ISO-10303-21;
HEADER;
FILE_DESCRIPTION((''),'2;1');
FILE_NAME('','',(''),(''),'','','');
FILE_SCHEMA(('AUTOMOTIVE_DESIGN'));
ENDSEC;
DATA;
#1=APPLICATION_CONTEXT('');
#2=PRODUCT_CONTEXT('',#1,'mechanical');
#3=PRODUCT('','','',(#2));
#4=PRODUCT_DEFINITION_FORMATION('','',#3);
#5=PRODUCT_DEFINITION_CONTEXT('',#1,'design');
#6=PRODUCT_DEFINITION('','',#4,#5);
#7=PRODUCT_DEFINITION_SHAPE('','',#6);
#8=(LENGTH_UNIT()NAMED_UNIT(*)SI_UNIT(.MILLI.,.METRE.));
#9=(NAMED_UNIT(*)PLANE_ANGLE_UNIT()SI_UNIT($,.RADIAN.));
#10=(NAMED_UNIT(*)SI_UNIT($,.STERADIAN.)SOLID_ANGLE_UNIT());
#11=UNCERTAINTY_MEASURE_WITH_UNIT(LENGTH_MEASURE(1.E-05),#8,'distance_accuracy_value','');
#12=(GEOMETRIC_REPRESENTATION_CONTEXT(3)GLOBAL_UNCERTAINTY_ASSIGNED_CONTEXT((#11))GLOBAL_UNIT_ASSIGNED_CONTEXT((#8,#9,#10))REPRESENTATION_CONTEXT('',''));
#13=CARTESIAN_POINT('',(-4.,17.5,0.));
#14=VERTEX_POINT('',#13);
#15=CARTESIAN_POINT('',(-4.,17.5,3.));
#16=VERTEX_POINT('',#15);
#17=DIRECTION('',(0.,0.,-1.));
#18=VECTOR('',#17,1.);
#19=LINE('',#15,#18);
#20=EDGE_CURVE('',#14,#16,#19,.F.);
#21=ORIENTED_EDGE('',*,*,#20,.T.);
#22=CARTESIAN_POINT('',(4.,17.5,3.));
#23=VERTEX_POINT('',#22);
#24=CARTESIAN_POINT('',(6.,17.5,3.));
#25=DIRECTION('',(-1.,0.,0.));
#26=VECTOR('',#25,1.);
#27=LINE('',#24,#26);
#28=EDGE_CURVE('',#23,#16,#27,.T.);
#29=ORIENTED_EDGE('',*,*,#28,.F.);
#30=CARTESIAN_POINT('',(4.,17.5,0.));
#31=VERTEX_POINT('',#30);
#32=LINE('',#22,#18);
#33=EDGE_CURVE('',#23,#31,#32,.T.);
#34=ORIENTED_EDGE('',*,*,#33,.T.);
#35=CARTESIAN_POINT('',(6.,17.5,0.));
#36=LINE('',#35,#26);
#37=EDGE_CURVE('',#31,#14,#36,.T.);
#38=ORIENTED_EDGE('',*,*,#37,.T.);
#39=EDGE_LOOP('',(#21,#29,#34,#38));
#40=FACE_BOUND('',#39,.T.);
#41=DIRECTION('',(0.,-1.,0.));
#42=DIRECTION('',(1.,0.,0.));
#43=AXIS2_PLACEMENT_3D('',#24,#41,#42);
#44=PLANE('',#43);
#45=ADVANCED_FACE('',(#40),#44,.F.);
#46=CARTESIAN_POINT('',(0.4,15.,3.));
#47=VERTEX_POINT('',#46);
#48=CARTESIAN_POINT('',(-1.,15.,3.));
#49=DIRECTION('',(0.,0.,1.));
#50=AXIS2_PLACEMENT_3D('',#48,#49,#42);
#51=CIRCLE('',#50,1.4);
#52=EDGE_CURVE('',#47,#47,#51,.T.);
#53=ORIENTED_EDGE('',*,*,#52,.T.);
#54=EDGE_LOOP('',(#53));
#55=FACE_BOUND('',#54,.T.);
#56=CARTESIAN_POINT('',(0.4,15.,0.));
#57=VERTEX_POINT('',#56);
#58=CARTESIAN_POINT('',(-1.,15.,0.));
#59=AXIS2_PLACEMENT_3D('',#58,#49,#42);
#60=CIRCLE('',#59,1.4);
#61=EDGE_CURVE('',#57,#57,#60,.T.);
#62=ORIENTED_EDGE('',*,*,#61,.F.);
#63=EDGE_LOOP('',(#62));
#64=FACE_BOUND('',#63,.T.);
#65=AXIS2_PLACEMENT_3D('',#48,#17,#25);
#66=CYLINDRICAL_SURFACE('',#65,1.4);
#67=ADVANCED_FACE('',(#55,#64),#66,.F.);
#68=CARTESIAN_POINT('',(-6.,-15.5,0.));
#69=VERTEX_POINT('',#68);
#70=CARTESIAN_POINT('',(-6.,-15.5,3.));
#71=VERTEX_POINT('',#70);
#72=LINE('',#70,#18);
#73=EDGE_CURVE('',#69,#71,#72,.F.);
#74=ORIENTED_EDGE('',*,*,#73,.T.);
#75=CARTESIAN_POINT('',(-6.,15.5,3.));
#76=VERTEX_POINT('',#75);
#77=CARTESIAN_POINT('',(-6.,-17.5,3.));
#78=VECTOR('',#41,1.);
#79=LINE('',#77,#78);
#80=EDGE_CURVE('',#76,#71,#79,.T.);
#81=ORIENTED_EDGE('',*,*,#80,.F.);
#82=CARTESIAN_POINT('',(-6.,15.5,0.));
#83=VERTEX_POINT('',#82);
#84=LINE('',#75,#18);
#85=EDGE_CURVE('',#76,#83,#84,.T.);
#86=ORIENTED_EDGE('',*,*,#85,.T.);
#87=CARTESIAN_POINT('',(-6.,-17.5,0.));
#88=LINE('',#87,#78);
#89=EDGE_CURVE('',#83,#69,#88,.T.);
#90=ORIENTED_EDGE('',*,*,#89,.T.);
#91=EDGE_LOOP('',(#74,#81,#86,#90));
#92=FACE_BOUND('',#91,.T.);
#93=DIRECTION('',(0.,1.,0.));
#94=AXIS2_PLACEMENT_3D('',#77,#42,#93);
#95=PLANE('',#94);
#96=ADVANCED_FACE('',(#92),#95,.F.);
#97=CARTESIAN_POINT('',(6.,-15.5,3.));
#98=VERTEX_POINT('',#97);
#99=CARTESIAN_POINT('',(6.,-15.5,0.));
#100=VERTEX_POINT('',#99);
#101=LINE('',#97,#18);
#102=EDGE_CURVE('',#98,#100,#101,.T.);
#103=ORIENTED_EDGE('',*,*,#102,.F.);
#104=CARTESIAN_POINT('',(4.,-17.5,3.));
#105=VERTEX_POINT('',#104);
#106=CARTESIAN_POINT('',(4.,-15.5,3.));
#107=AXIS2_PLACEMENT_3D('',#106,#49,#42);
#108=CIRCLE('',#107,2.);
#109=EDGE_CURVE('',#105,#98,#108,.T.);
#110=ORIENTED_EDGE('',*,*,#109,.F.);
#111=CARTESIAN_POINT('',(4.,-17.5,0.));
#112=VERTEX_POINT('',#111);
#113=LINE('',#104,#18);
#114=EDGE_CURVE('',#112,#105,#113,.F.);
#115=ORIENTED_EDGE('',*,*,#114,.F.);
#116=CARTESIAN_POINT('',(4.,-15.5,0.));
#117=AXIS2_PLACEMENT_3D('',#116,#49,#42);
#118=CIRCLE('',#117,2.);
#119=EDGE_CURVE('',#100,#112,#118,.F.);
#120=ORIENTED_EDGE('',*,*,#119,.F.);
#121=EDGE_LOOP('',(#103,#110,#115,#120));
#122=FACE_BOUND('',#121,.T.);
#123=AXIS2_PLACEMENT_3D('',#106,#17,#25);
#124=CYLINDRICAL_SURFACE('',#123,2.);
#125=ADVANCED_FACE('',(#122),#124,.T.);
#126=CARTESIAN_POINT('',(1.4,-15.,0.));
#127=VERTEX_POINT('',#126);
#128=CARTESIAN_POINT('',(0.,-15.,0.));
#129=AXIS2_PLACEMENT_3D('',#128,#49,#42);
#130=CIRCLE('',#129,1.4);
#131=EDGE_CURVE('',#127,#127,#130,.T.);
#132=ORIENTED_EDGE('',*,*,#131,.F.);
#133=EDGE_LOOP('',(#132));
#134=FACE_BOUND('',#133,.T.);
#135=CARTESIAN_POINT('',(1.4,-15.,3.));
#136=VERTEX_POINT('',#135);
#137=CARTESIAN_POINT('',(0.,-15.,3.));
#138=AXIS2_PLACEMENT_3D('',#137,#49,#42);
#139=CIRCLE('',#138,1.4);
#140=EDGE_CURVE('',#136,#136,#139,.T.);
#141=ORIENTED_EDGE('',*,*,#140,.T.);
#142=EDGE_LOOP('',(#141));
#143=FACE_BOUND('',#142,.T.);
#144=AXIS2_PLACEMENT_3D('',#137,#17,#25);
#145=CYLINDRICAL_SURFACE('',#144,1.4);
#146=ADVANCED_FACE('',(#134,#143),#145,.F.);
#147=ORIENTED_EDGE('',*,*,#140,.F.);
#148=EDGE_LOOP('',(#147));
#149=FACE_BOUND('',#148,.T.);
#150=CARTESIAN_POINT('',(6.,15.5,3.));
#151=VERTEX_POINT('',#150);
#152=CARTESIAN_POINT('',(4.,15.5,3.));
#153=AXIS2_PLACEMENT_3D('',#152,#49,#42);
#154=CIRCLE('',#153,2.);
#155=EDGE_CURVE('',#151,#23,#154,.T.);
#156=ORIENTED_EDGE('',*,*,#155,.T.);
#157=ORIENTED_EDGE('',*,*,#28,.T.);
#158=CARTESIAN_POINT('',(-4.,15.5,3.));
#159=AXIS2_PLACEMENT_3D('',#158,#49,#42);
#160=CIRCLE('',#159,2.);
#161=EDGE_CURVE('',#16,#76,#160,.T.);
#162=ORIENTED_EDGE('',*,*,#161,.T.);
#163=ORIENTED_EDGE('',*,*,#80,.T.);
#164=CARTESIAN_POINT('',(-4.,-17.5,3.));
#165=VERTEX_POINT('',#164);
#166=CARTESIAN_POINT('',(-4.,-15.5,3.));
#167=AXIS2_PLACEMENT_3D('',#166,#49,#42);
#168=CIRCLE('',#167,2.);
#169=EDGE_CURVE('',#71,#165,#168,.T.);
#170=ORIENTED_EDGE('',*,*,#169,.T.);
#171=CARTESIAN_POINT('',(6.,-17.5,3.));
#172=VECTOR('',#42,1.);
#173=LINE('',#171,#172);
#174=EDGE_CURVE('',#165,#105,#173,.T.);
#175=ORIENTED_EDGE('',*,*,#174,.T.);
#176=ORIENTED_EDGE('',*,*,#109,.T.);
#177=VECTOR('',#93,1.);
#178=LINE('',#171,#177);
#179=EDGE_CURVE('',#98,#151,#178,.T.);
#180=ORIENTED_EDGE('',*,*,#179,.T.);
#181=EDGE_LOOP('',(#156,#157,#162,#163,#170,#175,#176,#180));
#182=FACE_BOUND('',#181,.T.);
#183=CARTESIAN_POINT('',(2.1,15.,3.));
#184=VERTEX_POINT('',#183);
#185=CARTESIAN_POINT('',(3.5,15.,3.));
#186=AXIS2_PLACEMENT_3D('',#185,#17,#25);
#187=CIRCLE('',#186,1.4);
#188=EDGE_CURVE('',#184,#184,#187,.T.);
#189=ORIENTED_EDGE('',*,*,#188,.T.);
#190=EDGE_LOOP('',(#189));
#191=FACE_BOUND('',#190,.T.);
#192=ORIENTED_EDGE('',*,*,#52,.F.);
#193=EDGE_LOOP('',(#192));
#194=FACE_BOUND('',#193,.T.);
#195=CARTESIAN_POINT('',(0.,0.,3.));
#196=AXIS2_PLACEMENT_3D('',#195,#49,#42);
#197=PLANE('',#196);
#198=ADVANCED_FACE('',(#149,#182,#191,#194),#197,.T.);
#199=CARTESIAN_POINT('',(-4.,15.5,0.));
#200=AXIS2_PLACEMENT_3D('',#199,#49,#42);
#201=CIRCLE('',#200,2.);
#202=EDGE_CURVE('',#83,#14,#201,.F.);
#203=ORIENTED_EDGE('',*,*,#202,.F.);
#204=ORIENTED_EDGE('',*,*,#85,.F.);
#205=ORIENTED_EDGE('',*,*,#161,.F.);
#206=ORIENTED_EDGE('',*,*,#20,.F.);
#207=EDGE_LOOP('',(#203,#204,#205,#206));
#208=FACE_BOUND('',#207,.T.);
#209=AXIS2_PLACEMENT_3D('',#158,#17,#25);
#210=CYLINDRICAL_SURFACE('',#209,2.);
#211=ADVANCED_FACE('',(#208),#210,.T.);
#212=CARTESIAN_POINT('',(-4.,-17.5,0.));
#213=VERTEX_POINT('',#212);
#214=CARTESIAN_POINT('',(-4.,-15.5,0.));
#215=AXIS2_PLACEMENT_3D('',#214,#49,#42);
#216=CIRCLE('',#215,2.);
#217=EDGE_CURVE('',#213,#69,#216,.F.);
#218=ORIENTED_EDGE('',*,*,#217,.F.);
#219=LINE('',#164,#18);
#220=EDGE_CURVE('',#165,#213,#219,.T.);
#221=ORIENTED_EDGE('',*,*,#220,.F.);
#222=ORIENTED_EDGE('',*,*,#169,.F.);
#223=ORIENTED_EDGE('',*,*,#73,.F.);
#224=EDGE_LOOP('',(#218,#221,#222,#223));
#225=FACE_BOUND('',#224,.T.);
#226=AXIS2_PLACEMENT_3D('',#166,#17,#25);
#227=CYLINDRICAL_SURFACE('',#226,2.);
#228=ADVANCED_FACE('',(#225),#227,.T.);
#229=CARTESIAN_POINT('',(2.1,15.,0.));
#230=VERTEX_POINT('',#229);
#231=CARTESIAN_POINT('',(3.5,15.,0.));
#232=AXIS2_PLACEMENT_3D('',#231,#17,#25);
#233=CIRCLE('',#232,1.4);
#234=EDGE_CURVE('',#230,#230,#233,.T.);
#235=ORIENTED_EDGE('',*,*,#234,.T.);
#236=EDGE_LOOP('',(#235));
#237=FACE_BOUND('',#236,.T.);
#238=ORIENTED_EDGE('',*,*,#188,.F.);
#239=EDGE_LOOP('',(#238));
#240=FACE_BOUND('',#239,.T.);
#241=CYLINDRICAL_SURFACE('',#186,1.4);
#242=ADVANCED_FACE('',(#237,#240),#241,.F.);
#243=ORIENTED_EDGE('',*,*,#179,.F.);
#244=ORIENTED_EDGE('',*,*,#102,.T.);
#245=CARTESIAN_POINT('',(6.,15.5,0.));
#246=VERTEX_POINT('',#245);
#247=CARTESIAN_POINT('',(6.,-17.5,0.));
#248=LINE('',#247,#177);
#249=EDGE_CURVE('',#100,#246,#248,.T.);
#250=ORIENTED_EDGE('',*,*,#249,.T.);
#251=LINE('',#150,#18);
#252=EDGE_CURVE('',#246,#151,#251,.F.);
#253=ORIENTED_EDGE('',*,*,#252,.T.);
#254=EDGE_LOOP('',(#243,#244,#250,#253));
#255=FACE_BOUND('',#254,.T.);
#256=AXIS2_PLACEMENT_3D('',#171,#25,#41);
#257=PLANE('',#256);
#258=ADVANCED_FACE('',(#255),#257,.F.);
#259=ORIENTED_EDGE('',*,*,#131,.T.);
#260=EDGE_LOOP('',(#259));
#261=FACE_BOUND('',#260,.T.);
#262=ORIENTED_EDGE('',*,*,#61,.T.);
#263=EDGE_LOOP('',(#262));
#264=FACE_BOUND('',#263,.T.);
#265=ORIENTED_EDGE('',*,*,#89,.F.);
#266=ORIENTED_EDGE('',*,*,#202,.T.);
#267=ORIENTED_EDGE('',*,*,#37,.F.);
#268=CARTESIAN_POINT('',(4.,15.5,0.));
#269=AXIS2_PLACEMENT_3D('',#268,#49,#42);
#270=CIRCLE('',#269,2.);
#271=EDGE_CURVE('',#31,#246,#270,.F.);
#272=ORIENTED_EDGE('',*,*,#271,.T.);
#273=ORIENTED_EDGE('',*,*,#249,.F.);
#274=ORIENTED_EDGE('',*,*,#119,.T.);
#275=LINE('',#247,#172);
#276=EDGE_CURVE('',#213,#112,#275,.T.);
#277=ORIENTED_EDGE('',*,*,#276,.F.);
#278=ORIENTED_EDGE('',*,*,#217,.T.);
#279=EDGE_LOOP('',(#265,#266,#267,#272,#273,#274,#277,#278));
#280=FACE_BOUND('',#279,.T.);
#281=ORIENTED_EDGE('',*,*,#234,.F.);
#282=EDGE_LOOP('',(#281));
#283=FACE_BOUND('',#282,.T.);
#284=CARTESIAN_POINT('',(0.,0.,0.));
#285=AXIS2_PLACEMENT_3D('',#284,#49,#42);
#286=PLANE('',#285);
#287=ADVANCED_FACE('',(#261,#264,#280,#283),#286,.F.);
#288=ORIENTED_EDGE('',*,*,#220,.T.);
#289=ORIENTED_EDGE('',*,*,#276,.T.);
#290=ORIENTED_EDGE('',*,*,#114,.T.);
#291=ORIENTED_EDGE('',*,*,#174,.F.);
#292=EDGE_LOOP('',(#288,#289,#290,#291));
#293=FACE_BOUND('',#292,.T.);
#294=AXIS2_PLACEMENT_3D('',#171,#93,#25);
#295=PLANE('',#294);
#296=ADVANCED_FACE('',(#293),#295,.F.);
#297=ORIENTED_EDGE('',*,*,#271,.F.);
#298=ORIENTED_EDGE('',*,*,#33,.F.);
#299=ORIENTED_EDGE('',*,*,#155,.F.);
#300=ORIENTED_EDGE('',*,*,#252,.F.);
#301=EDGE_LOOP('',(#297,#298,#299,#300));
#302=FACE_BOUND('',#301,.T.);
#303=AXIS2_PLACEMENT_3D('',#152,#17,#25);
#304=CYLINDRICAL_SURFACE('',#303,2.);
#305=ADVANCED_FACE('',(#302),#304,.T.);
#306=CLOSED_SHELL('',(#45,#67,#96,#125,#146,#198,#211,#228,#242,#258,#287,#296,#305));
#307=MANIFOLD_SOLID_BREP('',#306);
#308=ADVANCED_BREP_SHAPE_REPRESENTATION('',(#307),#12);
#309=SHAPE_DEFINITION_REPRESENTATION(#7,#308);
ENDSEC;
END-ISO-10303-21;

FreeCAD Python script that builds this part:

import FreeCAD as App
import Part
import Sketcher
Q = App.Units.Quantity


def edges_at(feature, points):
    """Names of the edges that pass closest to the given points."""
    edges = feature.Shape.Edges
    near = lambda p: min(range(len(edges)), key=lambda i: edges[i].distToShape(Part.Vertex(*p))[0])
    return sorted({f"Edge{near(p) + 1}" for p in points})


def add_polygon(sketch, points):
    """Adds a closed chain of lines whose ends are joined by coincident constraints."""
    first, n = sketch.GeometryCount, len(points)
    for a, b in zip(points, points[1:] + points[:1]):
        sketch.addGeometry(Part.LineSegment(App.Vector(*a, 0), App.Vector(*b, 0)), False)
    for i in range(n):
        sketch.addConstraint(Sketcher.Constraint("Coincident", first + i, 2, first + (i + 1) % n, 1))

doc = App.newDocument("Part")
body = doc.addObject("PartDesign::Body", "Body")

sketch1 = body.newObject("Sketcher::SketchObject", "Sketch")
sketch1.AttachmentSupport = (doc.getObject("XY_Plane"), [""])
sketch1.MapMode = "FlatFace"
add_polygon(sketch1, [(-6, 17.5), (-6, -17.5), (6, -17.5), (6, 17.5)])
sketch1.addGeometry(Part.Circle(App.Vector(0, -15, 0), App.Vector(0, 0, 1), 1.4), False)
sketch1.addGeometry(Part.Circle(App.Vector(-1, 15, 0), App.Vector(0, 0, 1), 1.4), False)
sketch1.addConstraint(Sketcher.Constraint("Vertical", 0))
sketch1.addConstraint(Sketcher.Constraint("Horizontal", 1))
sketch1.addConstraint(Sketcher.Constraint("Vertical", 2))
sketch1.addConstraint(Sketcher.Constraint("Horizontal", 3))
sketch1.addConstraint(Sketcher.Constraint("Equal", 4, 5))
sketch1.addConstraint(Sketcher.Constraint("Symmetric", 0, 2, 2, 2, -1, 1))
sketch1.addConstraint(Sketcher.Constraint("PointOnObject", 4, 3, -2))
sketch1.addConstraint(Sketcher.Constraint("Diameter", 4, Q("2.8 mm")))
sketch1.addConstraint(Sketcher.Constraint("DistanceX", 1, 1, 1, 2, Q("12 mm")))
sketch1.addConstraint(Sketcher.Constraint("DistanceY", 0, 2, 0, 1, Q("35 mm")))
sketch1.addConstraint(Sketcher.Constraint("DistanceY", 4, 3, -1, 1, Q("15 mm")))
sketch1.addConstraint(Sketcher.Constraint("DistanceX", 5, 3, -1, 1, Q("1 mm")))
sketch1.addConstraint(Sketcher.Constraint("DistanceY", -1, 1, 5, 3, Q("15 mm")))
pad1 = body.newObject("PartDesign::Pad", "Pad")
pad1.Profile = sketch1
pad1.Length = 3

sketch2 = body.newObject("Sketcher::SketchObject", "Sketch001")
sketch2.AttachmentSupport = (doc.getObject("XY_Plane"), [""])
sketch2.MapMode = "FlatFace"
sketch2.addGeometry(Part.Circle(App.Vector(3.5, 15, 0), App.Vector(0, 0, 1), 1.4), False)
sketch2.addConstraint(Sketcher.Constraint("Diameter", 0, Q("2.8 mm")))
sketch2.addConstraint(Sketcher.Constraint("DistanceY", -1, 1, 0, 3, Q("15 mm")))
sketch2.addConstraint(Sketcher.Constraint("DistanceX", -1, 1, 0, 3, Q("3.5 mm")))
pocket1 = body.newObject("PartDesign::Pocket", "Pocket")
pocket1.Profile = sketch2
pocket1.Type = "ThroughAll"
pocket1.Reversed = True
doc.recompute()

fillet = body.newObject("PartDesign::Fillet", "Fillet")
fillet.Base = (pocket1, edges_at(pocket1, [
    (-6, 17.5, 1.5),
    (6, 17.5, 1.5),
    (6, -17.5, 1.5),
    (-6, -17.5, 1.5),
]))
fillet.Radius = 2

doc.recompute()
